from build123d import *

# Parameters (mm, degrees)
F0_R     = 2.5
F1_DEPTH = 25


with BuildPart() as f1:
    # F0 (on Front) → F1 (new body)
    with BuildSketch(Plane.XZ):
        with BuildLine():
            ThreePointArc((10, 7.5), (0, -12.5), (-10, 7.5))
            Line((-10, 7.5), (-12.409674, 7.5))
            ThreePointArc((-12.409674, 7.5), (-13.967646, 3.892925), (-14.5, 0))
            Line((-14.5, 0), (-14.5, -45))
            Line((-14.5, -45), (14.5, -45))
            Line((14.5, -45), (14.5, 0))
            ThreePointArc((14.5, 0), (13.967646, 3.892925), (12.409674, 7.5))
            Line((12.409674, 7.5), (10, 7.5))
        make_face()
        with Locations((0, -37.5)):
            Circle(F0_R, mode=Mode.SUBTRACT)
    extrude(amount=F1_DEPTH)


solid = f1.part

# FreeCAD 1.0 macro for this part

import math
import FreeCAD as App
import Part
import Sketcher
from FreeCAD import Vector
Q = App.Units.Quantity

doc = App.newDocument("Part")
body = doc.addObject("PartDesign::Body", "Body")

sketch1 = body.newObject("Sketcher::SketchObject", "Sketch")
sketch1.AttachmentSupport = (doc.getObject("XZ_Plane"), [""])
sketch1.MapMode = "FlatFace"
sketch1.addGeometry([
    Part.ArcOfCircle(Part.Circle(Vector(0, 0, 0), Vector(0, 0, 1), 12.5), math.radians(143), math.radians(397)),
    Part.LineSegment(Vector(-10, 7.5, 0), Vector(-12.4, 7.5, 0)),
    Part.ArcOfCircle(Part.Circle(Vector(0, 0, 0), Vector(0, 0, 1), 14.5), math.radians(149), math.radians(180)),
    Part.LineSegment(Vector(-14.5, 0, 0), Vector(-14.5, -45, 0)),
    Part.LineSegment(Vector(-14.5, -45, 0), Vector(14.5, -45, 0)),
    Part.LineSegment(Vector(14.5, -45, 0), Vector(14.5, 0, 0)),
    Part.ArcOfCircle(Part.Circle(Vector(0, 0, 0), Vector(0, 0, 1), 14.5), math.radians(0), math.radians(31)),
    Part.LineSegment(Vector(12.4, 7.5, 0), Vector(10, 7.5, 0)),
    Part.Circle(Vector(0, -37.5, 0), Vector(0, 0, 1), 2.5),
], False)
sketch1.addConstraint([
    Sketcher.Constraint("Coincident", 0, 1, 1, 1),
    Sketcher.Constraint("Coincident", 1, 2, 2, 1),
    Sketcher.Constraint("Tangent", 2, 2, 3, 1),
    Sketcher.Constraint("Coincident", 3, 2, 4, 1),
    Sketcher.Constraint("Coincident", 4, 2, 5, 1),
    Sketcher.Constraint("Tangent", 5, 2, 6, 1),
    Sketcher.Constraint("Coincident", 6, 2, 7, 1),
    Sketcher.Constraint("Coincident", 7, 2, 0, 2),
    Sketcher.Constraint("Horizontal", 1),
    Sketcher.Constraint("Vertical", 3),
    Sketcher.Constraint("Horizontal", 4),
    Sketcher.Constraint("Vertical", 5),
    Sketcher.Constraint("Horizontal", 7),
    Sketcher.Constraint("Coincident", 0, 3, -1, 1),
    Sketcher.Constraint("Coincident", 2, 3, -1, 1),
    Sketcher.Constraint("Coincident", 6, 3, -1, 1),
    Sketcher.Constraint("Equal", 2, 6),
    Sketcher.Constraint("PointOnObject", 8, 3, -2),
    Sketcher.Constraint("Horizontal", 1, 2, 6, 2),
    Sketcher.Constraint("Diameter", 8, Q("5 mm")),
    Sketcher.Constraint("Radius", 0, Q("12.5 mm")),
    Sketcher.Constraint("DistanceX", 4, 1, 4, 2, Q("29 mm")),
    Sketcher.Constraint("DistanceY", 3, 2, 3, 1, Q("45 mm")),
    Sketcher.Constraint("DistanceX", 0, 1, -1, 1, Q("10 mm")),
    Sketcher.Constraint("DistanceY", 8, 3, 0, 1, Q("45 mm")),
])
pad1 = body.newObject("PartDesign::Pad", "Pad")
pad1.Profile = sketch1
pad1.Length = 25

doc.recompute()
